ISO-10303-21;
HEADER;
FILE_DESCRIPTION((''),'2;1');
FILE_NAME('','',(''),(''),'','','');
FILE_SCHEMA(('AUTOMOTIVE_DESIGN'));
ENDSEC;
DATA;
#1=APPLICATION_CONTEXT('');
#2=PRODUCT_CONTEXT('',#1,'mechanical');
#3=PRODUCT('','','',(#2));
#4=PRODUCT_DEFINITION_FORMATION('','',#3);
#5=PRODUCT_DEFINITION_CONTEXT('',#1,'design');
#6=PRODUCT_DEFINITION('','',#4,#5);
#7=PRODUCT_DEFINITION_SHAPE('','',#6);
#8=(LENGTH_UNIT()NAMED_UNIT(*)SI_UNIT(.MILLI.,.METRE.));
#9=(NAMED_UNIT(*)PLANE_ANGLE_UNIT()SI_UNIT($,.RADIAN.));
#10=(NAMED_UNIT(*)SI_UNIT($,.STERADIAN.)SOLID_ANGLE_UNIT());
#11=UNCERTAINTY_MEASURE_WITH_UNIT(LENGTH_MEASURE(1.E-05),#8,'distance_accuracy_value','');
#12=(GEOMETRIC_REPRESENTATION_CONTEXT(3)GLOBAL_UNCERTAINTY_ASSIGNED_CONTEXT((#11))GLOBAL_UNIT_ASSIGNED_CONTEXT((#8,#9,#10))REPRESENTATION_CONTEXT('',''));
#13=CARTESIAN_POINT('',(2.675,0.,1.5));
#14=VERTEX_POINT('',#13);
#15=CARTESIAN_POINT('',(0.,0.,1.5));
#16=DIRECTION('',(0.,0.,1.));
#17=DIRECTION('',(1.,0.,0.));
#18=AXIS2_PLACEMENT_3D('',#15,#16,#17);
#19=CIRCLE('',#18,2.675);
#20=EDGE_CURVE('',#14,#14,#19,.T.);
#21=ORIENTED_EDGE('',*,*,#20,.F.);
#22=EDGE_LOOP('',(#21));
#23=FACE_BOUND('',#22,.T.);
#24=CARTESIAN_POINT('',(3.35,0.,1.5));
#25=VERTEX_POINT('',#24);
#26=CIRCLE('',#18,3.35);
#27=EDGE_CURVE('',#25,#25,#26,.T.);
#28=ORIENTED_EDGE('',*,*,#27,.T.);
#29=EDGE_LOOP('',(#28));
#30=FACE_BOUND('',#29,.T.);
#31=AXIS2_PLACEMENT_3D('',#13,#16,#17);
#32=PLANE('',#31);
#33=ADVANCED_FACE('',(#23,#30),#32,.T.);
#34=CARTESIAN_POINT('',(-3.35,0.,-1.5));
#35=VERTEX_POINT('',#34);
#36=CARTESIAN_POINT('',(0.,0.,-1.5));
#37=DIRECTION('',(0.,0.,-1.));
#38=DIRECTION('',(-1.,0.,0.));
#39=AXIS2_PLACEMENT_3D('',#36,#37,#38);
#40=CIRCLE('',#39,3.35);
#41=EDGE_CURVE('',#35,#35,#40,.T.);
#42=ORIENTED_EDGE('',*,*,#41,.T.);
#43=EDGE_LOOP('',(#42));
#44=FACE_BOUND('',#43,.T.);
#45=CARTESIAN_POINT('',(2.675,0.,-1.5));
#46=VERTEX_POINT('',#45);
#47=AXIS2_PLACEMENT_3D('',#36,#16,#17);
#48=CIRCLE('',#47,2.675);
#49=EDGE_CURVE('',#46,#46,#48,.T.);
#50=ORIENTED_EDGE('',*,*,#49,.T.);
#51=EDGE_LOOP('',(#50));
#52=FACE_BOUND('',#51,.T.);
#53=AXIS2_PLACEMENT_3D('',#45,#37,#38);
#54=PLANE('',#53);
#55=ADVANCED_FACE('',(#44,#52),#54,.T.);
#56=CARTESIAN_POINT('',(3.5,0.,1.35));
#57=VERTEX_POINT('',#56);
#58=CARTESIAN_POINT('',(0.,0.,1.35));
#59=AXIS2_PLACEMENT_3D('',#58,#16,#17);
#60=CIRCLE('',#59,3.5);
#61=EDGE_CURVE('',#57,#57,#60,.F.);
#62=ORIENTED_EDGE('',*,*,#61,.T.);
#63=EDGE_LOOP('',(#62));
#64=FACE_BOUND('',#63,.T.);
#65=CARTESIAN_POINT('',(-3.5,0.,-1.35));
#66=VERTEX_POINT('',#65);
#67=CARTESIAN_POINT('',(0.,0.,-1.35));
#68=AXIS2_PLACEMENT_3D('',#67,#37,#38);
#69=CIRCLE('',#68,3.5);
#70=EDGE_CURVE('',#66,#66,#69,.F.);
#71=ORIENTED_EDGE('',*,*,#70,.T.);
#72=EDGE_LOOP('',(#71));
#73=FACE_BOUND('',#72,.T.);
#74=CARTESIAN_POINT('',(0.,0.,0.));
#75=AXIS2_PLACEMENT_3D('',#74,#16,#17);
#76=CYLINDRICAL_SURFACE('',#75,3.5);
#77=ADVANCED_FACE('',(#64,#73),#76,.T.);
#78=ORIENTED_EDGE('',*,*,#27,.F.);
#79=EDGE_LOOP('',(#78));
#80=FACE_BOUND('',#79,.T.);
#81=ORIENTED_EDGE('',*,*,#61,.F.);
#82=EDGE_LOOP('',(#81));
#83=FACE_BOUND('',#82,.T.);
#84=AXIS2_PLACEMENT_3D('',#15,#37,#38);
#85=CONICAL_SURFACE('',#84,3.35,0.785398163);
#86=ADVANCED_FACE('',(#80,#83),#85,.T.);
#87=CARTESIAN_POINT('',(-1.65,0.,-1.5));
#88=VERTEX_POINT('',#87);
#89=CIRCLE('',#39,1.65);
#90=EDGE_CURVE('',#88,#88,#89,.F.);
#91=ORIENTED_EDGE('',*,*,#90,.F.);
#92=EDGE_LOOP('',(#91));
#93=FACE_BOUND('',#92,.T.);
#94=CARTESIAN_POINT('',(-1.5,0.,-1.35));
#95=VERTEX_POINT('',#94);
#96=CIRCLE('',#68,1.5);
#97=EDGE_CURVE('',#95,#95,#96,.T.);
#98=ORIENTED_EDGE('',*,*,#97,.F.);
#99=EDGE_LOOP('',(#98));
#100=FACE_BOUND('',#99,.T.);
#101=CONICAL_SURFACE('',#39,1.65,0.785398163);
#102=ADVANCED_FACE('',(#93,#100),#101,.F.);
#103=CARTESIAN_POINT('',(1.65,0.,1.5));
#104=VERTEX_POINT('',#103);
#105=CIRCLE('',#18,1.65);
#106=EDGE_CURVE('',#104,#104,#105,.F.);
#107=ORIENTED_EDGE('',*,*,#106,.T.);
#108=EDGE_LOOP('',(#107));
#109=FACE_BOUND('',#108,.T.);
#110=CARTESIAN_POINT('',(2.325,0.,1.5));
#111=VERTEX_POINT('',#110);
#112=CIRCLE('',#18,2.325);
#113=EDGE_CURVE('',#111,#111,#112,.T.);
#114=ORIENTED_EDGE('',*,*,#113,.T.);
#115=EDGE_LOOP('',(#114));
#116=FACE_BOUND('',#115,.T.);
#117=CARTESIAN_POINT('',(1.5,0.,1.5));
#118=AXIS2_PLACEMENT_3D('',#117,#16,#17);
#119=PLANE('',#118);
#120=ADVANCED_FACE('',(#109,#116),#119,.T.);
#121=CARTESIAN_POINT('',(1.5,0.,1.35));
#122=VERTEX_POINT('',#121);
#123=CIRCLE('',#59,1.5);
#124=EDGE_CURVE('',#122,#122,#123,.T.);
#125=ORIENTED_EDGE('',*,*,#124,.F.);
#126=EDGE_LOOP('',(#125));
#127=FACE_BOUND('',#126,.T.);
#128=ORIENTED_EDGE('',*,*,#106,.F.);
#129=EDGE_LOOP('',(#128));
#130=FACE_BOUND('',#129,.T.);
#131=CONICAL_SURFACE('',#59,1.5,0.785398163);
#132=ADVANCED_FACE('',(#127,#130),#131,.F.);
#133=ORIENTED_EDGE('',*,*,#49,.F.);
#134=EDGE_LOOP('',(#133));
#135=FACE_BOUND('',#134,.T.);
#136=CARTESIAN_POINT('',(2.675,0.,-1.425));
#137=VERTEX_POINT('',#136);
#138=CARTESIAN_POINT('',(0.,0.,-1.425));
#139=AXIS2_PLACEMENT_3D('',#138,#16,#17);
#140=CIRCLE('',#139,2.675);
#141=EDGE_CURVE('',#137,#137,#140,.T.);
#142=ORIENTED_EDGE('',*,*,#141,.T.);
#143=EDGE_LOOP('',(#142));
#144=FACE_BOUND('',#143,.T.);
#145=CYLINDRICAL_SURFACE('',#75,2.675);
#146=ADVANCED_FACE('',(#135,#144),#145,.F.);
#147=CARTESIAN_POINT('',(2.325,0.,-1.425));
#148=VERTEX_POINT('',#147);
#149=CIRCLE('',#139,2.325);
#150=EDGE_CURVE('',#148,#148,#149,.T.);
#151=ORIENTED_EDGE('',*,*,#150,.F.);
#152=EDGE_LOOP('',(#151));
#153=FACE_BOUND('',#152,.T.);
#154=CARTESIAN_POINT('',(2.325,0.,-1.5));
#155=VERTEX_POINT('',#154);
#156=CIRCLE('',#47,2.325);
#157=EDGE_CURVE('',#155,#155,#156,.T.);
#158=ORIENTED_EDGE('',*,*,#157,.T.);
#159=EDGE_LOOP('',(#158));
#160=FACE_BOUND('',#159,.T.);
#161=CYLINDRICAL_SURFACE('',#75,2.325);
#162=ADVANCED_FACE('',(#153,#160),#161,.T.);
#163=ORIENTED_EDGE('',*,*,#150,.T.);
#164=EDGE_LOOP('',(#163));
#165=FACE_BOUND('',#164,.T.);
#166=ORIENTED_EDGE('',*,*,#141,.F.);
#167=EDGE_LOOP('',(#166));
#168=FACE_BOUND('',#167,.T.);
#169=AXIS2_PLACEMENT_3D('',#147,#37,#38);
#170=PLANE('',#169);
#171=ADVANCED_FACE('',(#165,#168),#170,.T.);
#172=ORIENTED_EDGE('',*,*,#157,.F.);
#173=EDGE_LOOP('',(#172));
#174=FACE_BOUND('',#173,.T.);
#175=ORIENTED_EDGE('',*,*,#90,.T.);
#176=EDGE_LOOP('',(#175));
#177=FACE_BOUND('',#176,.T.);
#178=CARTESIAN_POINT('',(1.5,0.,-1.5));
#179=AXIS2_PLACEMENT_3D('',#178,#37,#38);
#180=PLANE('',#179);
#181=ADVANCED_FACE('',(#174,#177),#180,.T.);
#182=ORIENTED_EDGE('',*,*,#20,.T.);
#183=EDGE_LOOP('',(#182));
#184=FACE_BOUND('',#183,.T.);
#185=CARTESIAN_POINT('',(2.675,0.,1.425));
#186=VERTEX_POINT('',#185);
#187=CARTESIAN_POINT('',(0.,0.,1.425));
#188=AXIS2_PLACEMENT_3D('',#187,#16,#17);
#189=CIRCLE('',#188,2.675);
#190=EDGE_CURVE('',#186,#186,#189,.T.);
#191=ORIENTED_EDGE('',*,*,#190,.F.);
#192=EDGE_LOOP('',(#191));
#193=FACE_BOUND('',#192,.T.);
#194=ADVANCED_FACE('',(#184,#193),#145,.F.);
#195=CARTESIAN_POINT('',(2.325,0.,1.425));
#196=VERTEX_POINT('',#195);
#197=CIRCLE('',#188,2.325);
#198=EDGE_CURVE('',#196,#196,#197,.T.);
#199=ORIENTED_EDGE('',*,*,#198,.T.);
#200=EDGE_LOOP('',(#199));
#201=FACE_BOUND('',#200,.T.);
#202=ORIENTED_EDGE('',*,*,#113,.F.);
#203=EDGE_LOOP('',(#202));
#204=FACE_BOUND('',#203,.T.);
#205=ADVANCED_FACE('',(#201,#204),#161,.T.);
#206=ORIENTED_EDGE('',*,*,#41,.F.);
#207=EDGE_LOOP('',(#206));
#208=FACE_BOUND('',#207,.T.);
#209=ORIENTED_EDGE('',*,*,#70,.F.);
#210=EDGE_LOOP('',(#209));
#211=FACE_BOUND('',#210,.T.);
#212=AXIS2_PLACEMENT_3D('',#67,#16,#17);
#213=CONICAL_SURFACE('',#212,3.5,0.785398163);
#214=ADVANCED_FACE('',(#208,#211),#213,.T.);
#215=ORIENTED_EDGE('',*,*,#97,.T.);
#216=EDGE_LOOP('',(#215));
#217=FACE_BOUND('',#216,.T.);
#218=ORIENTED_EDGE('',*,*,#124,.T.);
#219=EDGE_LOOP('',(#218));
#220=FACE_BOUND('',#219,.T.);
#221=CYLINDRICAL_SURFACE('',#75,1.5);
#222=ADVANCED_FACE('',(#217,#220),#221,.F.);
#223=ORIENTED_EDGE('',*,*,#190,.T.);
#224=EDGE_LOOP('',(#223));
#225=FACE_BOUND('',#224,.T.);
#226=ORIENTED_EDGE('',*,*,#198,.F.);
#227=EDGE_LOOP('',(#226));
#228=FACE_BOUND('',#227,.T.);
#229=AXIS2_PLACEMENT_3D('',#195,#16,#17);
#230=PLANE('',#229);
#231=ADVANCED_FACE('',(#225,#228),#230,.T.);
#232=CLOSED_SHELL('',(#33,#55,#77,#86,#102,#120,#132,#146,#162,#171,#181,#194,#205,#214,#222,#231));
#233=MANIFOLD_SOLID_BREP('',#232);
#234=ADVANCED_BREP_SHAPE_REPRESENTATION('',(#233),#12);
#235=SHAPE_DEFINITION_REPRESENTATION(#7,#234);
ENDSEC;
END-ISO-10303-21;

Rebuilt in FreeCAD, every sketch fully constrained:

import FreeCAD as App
import Part
import Sketcher
Q = App.Units.Quantity


def edges_at(feature, points):
    """Names of the edges that pass closest to the given points."""
    edges = feature.Shape.Edges
    near = lambda p: min(range(len(edges)), key=lambda i: edges[i].distToShape(Part.Vertex(*p))[0])
    return sorted({f"Edge{near(p) + 1}" for p in points})


def add_polygon(sketch, points):
    """Adds a closed chain of lines whose ends are joined by coincident constraints."""
    first, n = sketch.GeometryCount, len(points)
    for a, b in zip(points, points[1:] + points[:1]):
        sketch.addGeometry(Part.LineSegment(App.Vector(*a, 0), App.Vector(*b, 0)), False)
    for i in range(n):
        sketch.addConstraint(Sketcher.Constraint("Coincident", first + i, 2, first + (i + 1) % n, 1))

doc = App.newDocument("Part")
body = doc.addObject("PartDesign::Body", "Body")

sketch1 = body.newObject("Sketcher::SketchObject", "Sketch")
sketch1.AttachmentSupport = (doc.getObject("XZ_Plane"), [""])
sketch1.MapMode = "FlatFace"
add_polygon(sketch1, [(1.5, -1.5), (1.5, 1.5), (2.325, 1.5), (2.325, 1.425), (2.675, 1.425), (2.675, 1.5), (3.5, 1.5), (3.5, -1.5), (2.675, -1.5), (2.675, -1.425), (2.325, -1.425), (2.325, -1.5)])
sketch1.addConstraint(Sketcher.Constraint("Vertical", 0))
sketch1.addConstraint(Sketcher.Constraint("Horizontal", 1))
sketch1.addConstraint(Sketcher.Constraint("Vertical", 2))
sketch1.addConstraint(Sketcher.Constraint("Horizontal", 3))
sketch1.addConstraint(Sketcher.Constraint("Vertical", 4))
sketch1.addConstraint(Sketcher.Constraint("Horizontal", 5))
sketch1.addConstraint(Sketcher.Constraint("Vertical", 6))
sketch1.addConstraint(Sketcher.Constraint("Horizontal", 7))
sketch1.addConstraint(Sketcher.Constraint("Vertical", 8))
sketch1.addConstraint(Sketcher.Constraint("Horizontal", 9))
sketch1.addConstraint(Sketcher.Constraint("Vertical", 10))
sketch1.addConstraint(Sketcher.Constraint("Horizontal", 11))
sketch1.addConstraint(Sketcher.Constraint("Symmetric", 4, 2, 7, 2, -1))
sketch1.addConstraint(Sketcher.Constraint("Symmetric", 2, 2, 9, 2, -1))
sketch1.addConstraint(Sketcher.Constraint("Horizontal", 1, 2, 4, 2))
sketch1.addConstraint(Sketcher.Constraint("Horizontal", 7, 2, 10, 2))
sketch1.addConstraint(Sketcher.Constraint("Equal", 1, 5))
sketch1.addConstraint(Sketcher.Constraint("DistanceY", 0, 1, 0, 2, Q("3 mm")))
sketch1.addConstraint(Sketcher.Constraint("DistanceX", 0, 2, 5, 2, Q("2 mm")))
sketch1.addConstraint(Sketcher.Constraint("DistanceX", 3, 1, 3, 2, Q("0.35 mm")))
sketch1.addConstraint(Sketcher.Constraint("DistanceX", -1, 1, 0, 2, Q("1.5 mm")))
sketch1.addConstraint(Sketcher.Constraint("DistanceY", 2, 2, 2, 1, Q("0.075 mm")))
revolution = body.newObject("PartDesign::Revolution", "Revolution")
revolution.Profile = sketch1
revolution.ReferenceAxis = (sketch1, ["V_Axis"])
revolution.Angle = 360
doc.recompute()

chamfer = body.newObject("PartDesign::Chamfer", "Chamfer")
chamfer.Base = (revolution, edges_at(revolution, [
    (-3.5, 0, 1.5),
    (-3.5, 0, -1.5),
    (-1.5, 0, -1.5),
    (-1.5, 0, 1.5),
]))
chamfer.Size = 0.15

doc.recompute()
